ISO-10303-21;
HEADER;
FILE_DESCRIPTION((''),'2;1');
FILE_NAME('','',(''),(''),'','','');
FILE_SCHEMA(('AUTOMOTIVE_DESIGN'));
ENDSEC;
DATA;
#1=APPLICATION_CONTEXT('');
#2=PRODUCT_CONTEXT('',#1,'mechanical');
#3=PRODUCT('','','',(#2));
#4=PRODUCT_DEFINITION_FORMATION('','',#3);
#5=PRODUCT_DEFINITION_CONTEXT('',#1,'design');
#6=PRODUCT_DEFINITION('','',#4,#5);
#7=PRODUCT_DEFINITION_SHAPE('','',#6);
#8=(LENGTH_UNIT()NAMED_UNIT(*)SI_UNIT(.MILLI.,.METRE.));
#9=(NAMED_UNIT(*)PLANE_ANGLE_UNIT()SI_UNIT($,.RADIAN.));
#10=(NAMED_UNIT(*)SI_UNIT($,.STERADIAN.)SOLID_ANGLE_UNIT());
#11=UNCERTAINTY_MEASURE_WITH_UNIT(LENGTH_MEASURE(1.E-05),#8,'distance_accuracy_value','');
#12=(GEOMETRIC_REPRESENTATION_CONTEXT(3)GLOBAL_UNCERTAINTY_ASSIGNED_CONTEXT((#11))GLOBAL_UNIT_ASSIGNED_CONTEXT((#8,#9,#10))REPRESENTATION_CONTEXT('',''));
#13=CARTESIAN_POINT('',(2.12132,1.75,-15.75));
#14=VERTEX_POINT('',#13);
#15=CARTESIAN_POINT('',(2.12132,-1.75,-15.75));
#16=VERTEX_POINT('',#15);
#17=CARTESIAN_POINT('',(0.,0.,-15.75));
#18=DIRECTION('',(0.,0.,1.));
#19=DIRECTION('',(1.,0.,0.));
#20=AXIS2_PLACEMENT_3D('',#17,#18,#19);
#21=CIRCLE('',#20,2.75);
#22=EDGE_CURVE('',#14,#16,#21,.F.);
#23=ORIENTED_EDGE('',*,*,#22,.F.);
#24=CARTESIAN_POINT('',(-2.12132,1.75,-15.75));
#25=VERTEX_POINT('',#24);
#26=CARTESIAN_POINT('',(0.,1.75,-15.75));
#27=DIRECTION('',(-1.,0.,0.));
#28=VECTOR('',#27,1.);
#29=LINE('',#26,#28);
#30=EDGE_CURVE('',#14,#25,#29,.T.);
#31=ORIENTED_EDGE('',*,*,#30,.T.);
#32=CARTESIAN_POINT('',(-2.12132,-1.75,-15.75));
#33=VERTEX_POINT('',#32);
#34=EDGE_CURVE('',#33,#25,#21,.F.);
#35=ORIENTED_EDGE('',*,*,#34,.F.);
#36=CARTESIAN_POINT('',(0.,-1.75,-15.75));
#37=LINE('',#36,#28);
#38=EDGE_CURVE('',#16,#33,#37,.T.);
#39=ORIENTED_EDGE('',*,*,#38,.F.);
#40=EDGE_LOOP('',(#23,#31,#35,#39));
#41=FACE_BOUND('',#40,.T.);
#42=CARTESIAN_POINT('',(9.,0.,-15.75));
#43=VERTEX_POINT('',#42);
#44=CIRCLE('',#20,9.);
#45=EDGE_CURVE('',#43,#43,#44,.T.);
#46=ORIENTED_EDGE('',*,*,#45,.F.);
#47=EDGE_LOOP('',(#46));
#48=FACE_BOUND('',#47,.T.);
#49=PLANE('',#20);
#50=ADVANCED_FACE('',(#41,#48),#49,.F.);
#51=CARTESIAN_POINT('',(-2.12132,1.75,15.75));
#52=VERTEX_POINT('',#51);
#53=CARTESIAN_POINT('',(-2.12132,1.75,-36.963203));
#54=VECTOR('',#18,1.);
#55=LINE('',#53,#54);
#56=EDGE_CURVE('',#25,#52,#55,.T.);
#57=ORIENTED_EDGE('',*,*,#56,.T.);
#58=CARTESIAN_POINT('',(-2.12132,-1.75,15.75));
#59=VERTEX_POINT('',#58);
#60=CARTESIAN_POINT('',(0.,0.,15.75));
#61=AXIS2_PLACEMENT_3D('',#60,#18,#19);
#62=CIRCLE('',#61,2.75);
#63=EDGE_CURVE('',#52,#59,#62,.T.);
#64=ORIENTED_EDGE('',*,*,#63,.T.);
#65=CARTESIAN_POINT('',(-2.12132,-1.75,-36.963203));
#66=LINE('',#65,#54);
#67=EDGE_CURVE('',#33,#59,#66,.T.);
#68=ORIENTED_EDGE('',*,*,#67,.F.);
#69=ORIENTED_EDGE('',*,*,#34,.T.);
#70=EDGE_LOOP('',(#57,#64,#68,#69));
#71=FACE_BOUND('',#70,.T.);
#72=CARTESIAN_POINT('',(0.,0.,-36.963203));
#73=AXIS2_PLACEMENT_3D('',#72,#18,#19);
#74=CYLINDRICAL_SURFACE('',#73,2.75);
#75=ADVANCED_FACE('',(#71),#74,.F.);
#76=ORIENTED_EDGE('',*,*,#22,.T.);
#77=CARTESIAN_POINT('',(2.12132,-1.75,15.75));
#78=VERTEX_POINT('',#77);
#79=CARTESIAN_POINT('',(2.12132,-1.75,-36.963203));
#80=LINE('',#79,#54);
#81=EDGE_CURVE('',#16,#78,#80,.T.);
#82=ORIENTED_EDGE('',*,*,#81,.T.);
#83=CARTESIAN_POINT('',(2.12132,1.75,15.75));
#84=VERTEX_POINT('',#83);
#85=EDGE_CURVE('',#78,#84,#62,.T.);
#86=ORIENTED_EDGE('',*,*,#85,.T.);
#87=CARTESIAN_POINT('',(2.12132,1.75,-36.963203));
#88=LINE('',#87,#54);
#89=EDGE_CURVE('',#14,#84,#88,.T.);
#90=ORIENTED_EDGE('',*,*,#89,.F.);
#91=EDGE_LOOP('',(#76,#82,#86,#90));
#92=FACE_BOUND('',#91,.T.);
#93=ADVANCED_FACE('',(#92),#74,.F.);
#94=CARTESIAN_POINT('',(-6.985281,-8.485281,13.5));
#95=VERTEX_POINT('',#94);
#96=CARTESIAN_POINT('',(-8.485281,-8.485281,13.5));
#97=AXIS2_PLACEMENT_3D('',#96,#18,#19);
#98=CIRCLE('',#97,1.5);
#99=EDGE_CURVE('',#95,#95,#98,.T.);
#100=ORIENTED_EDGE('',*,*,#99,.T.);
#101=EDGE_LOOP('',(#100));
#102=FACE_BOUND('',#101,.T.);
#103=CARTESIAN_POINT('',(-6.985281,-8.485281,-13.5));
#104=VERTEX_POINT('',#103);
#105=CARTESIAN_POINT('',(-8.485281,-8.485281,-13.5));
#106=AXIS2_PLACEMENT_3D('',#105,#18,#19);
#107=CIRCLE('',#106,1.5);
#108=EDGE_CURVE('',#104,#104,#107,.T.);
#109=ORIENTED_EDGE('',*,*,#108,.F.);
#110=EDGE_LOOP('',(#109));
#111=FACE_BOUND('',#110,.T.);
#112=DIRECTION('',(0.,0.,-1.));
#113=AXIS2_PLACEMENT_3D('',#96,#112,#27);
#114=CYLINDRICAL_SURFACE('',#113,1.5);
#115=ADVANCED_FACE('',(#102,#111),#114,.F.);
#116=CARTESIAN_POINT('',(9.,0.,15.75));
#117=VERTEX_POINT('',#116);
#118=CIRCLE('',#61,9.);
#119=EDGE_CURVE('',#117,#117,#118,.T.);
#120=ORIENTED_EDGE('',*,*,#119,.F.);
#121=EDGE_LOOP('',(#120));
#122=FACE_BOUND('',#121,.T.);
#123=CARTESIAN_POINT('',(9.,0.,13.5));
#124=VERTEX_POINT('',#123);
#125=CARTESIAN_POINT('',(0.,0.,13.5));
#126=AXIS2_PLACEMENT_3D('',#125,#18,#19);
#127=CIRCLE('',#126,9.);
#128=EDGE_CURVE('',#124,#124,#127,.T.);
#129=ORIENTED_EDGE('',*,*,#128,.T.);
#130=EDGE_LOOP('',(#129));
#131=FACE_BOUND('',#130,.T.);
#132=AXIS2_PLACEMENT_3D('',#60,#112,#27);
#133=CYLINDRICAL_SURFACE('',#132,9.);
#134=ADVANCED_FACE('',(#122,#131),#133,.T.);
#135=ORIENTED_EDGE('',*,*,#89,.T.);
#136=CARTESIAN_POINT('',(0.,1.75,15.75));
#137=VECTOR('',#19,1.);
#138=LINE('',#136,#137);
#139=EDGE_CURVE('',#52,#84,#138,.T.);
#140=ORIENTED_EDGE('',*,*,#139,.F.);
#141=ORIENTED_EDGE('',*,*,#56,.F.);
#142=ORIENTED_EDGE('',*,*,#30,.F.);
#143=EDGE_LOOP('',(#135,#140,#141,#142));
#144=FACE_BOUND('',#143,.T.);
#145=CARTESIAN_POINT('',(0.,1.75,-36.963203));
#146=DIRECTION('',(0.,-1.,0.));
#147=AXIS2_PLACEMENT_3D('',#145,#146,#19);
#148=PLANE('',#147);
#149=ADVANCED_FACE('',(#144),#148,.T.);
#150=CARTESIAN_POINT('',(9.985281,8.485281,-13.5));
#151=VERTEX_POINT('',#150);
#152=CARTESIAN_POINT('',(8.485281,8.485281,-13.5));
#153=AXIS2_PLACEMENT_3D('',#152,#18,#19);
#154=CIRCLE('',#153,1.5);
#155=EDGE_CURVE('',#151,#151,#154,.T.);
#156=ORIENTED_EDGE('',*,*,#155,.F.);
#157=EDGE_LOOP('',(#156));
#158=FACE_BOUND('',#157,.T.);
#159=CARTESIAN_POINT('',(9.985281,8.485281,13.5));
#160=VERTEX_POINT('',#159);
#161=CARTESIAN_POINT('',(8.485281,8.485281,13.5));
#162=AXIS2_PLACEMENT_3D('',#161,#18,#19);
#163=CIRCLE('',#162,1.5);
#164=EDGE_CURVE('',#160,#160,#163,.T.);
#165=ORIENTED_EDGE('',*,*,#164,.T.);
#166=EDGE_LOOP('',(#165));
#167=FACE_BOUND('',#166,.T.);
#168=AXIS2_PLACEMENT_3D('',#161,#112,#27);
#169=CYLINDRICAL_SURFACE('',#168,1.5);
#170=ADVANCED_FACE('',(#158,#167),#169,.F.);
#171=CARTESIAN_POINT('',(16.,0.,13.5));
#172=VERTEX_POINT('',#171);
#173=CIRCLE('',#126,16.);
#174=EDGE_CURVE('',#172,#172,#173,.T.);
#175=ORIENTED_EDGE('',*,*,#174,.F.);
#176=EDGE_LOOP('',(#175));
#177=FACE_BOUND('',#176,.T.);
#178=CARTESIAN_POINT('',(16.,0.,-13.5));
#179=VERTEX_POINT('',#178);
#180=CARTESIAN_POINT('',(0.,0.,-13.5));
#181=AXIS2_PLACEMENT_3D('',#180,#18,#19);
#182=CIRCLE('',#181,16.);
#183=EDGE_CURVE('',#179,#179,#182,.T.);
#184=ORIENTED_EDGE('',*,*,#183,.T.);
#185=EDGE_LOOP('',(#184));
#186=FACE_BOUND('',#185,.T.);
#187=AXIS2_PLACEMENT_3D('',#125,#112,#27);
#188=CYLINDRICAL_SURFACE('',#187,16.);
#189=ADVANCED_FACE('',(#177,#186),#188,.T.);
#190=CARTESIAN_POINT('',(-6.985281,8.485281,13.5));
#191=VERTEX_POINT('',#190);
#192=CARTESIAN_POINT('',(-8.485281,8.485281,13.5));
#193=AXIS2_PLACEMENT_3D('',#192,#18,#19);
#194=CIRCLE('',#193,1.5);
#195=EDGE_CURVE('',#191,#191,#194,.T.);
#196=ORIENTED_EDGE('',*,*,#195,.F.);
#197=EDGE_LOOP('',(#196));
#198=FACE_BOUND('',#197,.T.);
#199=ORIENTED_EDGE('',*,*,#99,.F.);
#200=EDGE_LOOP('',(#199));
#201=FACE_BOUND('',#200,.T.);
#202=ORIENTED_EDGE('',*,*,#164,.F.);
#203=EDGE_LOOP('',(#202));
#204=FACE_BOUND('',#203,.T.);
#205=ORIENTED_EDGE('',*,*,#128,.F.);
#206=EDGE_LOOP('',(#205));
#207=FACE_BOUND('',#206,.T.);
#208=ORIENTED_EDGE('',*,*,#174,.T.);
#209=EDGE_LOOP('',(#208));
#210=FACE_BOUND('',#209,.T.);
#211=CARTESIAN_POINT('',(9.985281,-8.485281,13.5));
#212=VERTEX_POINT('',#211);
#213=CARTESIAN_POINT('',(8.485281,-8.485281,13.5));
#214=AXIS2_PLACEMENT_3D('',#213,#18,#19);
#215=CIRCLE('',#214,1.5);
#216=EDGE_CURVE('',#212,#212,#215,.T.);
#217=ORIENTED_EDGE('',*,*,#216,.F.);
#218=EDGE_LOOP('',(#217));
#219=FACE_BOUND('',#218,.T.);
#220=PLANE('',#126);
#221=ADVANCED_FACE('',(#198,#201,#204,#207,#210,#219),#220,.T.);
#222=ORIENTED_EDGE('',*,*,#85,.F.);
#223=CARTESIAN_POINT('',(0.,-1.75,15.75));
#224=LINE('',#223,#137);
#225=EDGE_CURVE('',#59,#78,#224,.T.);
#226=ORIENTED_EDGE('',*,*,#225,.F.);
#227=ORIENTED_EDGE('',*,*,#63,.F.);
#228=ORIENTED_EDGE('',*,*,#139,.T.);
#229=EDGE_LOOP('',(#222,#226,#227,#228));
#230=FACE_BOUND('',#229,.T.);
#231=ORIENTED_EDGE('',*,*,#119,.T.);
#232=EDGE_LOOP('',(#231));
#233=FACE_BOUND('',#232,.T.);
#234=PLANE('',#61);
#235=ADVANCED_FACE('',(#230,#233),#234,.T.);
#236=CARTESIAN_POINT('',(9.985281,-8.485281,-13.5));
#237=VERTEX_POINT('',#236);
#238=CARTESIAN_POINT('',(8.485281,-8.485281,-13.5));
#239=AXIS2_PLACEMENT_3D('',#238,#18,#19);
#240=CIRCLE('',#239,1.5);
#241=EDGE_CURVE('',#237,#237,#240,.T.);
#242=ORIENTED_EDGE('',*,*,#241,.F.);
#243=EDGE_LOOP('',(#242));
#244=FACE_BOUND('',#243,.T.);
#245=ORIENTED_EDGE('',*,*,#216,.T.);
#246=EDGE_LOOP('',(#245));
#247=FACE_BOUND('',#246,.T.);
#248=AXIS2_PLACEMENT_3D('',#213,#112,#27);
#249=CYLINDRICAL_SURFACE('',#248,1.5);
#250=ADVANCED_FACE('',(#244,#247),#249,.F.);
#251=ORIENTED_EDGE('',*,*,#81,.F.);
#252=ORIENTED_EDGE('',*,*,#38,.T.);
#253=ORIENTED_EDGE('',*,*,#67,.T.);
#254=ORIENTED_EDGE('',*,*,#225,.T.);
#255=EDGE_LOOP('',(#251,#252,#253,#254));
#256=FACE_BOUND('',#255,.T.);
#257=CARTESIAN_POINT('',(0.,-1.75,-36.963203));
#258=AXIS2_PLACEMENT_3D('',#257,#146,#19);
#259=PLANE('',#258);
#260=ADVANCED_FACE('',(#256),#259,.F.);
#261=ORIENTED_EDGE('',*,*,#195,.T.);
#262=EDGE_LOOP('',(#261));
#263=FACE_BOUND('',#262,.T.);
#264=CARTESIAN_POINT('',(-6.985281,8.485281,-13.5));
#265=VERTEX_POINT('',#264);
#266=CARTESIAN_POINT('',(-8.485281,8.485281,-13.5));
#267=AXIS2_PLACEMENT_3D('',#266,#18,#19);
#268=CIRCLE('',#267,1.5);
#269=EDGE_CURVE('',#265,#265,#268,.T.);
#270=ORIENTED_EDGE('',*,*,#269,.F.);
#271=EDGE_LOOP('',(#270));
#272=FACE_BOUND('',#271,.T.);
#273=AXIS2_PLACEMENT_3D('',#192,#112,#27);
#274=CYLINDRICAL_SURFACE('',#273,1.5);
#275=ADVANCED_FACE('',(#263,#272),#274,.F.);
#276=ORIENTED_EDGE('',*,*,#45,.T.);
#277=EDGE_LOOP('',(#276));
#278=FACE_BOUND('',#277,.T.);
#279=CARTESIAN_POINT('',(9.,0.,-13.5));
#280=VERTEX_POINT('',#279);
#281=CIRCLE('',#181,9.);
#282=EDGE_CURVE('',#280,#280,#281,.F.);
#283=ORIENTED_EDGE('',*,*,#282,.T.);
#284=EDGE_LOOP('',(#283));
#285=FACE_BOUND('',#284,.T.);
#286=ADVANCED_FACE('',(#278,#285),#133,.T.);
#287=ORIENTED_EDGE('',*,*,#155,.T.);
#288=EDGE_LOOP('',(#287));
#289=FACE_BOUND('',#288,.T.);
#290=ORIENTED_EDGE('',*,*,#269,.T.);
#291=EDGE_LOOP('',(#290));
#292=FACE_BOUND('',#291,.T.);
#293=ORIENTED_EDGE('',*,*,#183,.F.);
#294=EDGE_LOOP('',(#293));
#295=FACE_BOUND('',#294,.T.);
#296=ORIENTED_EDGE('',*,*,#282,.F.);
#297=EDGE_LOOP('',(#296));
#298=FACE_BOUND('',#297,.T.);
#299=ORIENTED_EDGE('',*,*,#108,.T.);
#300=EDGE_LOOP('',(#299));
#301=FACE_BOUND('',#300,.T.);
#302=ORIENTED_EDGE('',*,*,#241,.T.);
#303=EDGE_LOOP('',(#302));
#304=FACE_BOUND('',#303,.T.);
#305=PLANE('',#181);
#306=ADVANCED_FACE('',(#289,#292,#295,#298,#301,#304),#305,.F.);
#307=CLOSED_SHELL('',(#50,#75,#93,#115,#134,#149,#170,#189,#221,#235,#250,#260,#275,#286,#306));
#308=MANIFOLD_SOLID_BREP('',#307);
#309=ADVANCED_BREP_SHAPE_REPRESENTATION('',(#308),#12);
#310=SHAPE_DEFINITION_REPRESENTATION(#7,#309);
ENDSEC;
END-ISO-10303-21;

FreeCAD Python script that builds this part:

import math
import FreeCAD as App
import Part
import Sketcher
Q = App.Units.Quantity

doc = App.newDocument("Part")
body = doc.addObject("PartDesign::Body", "Body")

sketch1 = body.newObject("Sketcher::SketchObject", "Sketch")
sketch1.AttachmentSupport = (doc.getObject("XY_Plane"), [""])
sketch1.MapMode = "FlatFace"
sketch1.addGeometry([
    Part.Circle(App.Vector(0, 0, 0), App.Vector(0, 0, 1), 16),
    Part.Circle(App.Vector(-8.5, -8.5, 0), App.Vector(0, 0, 1), 1.5),
    Part.Circle(App.Vector(8.5, -8.5, 0), App.Vector(0, 0, 1), 1.5),
    Part.Circle(App.Vector(-8.5, 8.5, 0), App.Vector(0, 0, 1), 1.5),
    Part.Circle(App.Vector(0, 0, 0), App.Vector(0, 0, 1), 9),
    Part.Circle(App.Vector(8.5, 8.5, 0), App.Vector(0, 0, 1), 1.5),
], False)
sketch1.addConstraint([
    Sketcher.Constraint("Coincident", 0, 3, -1, 1),
    Sketcher.Constraint("Coincident", 4, 3, -1, 1),
    Sketcher.Constraint("Equal", 1, 2),
    Sketcher.Constraint("Equal", 2, 3),
    Sketcher.Constraint("Equal", 3, 5),
    Sketcher.Constraint("Symmetric", 2, 3, 3, 3, -1, 1),
    Sketcher.Constraint("Symmetric", 1, 3, 5, 3, -1, 1),
    Sketcher.Constraint("Symmetric", 1, 3, 2, 3, -2),
    Sketcher.Constraint("Diameter", 0, Q("32 mm")),
    Sketcher.Constraint("Diameter", 1, Q("3 mm")),
    Sketcher.Constraint("Diameter", 4, Q("18 mm")),
    Sketcher.Constraint("DistanceX", 1, 3, -1, 1, Q("8.485281 mm")),
    Sketcher.Constraint("DistanceY", 1, 3, -1, 1, Q("8.485281 mm")),
])
pad1 = body.newObject("PartDesign::Pad", "Pad")
pad1.Profile = sketch1
pad1.Length = 27
pad1.Midplane = True

sketch2 = body.newObject("Sketcher::SketchObject", "Sketch001")
sketch2.AttachmentSupport = (doc.getObject("XY_Plane"), [""])
sketch2.MapMode = "FlatFace"
sketch2.addGeometry([
    Part.Circle(App.Vector(0, 0, 0), App.Vector(0, 0, 1), 9),
    Part.Circle(App.Vector(0, 0, 0), App.Vector(0, 0, 1), 8),
], False)
sketch2.addConstraint([
    Sketcher.Constraint("Coincident", 0, 3, -1, 1),
    Sketcher.Constraint("Coincident", 1, 3, -1, 1),
    Sketcher.Constraint("Diameter", 0, Q("18 mm")),
    Sketcher.Constraint("Diameter", 1, Q("15 mm")),
])
pad2 = body.newObject("PartDesign::Pad", "Pad001")
pad2.Profile = sketch2
pad2.Length = 31.5
pad2.Midplane = True

sketch3 = body.newObject("Sketcher::SketchObject", "Sketch002")
sketch3.AttachmentSupport = (doc.getObject("XY_Plane"), [""])
sketch3.MapMode = "FlatFace"
sketch3.AttachmentOffset = App.Placement(App.Vector(0, 0, -15.75), App.Rotation())
sketch3.addGeometry([
    Part.Circle(App.Vector(0, 0, 0), App.Vector(0, 0, 1), 7.5),
    Part.ArcOfCircle(Part.Circle(App.Vector(0, 0, 0), App.Vector(0, 0, 1), 2.8), math.radians(-40), math.radians(40)),
    Part.LineSegment(App.Vector(2.1, -1.8, 0), App.Vector(-2.1, -1.8, 0)),
    Part.ArcOfCircle(Part.Circle(App.Vector(0, 0, 0), App.Vector(0, 0, 1), 2.8), math.radians(140), math.radians(220)),
    Part.LineSegment(App.Vector(-2.1, 1.8, 0), App.Vector(2.1, 1.8, 0)),
], False)
sketch3.addConstraint([
    Sketcher.Constraint("Coincident", 1, 1, 2, 1),
    Sketcher.Constraint("Coincident", 2, 2, 3, 2),
    Sketcher.Constraint("Coincident", 3, 1, 4, 1),
    Sketcher.Constraint("Coincident", 4, 2, 1, 2),
    Sketcher.Constraint("Horizontal", 2),
    Sketcher.Constraint("Horizontal", 4),
    Sketcher.Constraint("Coincident", 0, 3, -1, 1),
    Sketcher.Constraint("Coincident", 1, 3, -1, 1),
    Sketcher.Constraint("Coincident", 3, 3, -1, 1),
    Sketcher.Constraint("Equal", 1, 3),
    Sketcher.Constraint("Vertical", 2, 2, 3, 1),
    Sketcher.Constraint("Diameter", 0, Q("15 mm")),
    Sketcher.Constraint("Radius", 1, Q("2.75 mm")),
    Sketcher.Constraint("DistanceY", 2, 2, 3, 1, Q("3.5 mm")),
])
pad3 = body.newObject("PartDesign::Pad", "Pad002")
pad3.Profile = sketch3
pad3.Length = 31.5

doc.recompute()
